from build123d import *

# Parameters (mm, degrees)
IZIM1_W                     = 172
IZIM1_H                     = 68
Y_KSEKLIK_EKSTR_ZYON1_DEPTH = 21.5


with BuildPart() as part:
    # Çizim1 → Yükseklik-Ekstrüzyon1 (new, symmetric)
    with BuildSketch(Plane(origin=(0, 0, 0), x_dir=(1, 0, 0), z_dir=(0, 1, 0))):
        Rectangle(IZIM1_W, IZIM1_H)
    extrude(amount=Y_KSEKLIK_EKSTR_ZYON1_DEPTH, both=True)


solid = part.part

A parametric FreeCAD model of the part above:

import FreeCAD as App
import Part
import Sketcher
Q = App.Units.Quantity

doc = App.newDocument("Part")
body = doc.addObject("PartDesign::Body", "Body")

sketch1 = body.newObject("Sketcher::SketchObject", "Sketch")
sketch1.AttachmentSupport = (doc.getObject("XZ_Plane"), [""])
sketch1.MapMode = "FlatFace"
sketch1.addGeometry(Part.LineSegment(App.Vector(-86, -34, 0), App.Vector(-86, 34, 0)), False)
sketch1.addGeometry(Part.LineSegment(App.Vector(-86, 34, 0), App.Vector(86, 34, 0)), False)
sketch1.addGeometry(Part.LineSegment(App.Vector(86, 34, 0), App.Vector(86, -34, 0)), False)
sketch1.addGeometry(Part.LineSegment(App.Vector(86, -34, 0), App.Vector(-86, -34, 0)), False)
sketch1.addConstraint(Sketcher.Constraint("Coincident", 0, 2, 1, 1))
sketch1.addConstraint(Sketcher.Constraint("Coincident", 1, 2, 2, 1))
sketch1.addConstraint(Sketcher.Constraint("Coincident", 2, 2, 3, 1))
sketch1.addConstraint(Sketcher.Constraint("Coincident", 3, 2, 0, 1))
sketch1.addConstraint(Sketcher.Constraint("Vertical", 0))
sketch1.addConstraint(Sketcher.Constraint("Horizontal", 1))
sketch1.addConstraint(Sketcher.Constraint("Vertical", 2))
sketch1.addConstraint(Sketcher.Constraint("Horizontal", 3))
sketch1.addConstraint(Sketcher.Constraint("Symmetric", 0, 2, 2, 2, -1, 1))
sketch1.addConstraint(Sketcher.Constraint("DistanceX", 1, 1, 1, 2, Q("172 mm")))
sketch1.addConstraint(Sketcher.Constraint("DistanceY", 0, 1, 0, 2, Q("68 mm")))
pad1 = body.newObject("PartDesign::Pad", "Pad")
pad1.Profile = sketch1
pad1.Length = 43
pad1.Midplane = True

doc.recompute()
